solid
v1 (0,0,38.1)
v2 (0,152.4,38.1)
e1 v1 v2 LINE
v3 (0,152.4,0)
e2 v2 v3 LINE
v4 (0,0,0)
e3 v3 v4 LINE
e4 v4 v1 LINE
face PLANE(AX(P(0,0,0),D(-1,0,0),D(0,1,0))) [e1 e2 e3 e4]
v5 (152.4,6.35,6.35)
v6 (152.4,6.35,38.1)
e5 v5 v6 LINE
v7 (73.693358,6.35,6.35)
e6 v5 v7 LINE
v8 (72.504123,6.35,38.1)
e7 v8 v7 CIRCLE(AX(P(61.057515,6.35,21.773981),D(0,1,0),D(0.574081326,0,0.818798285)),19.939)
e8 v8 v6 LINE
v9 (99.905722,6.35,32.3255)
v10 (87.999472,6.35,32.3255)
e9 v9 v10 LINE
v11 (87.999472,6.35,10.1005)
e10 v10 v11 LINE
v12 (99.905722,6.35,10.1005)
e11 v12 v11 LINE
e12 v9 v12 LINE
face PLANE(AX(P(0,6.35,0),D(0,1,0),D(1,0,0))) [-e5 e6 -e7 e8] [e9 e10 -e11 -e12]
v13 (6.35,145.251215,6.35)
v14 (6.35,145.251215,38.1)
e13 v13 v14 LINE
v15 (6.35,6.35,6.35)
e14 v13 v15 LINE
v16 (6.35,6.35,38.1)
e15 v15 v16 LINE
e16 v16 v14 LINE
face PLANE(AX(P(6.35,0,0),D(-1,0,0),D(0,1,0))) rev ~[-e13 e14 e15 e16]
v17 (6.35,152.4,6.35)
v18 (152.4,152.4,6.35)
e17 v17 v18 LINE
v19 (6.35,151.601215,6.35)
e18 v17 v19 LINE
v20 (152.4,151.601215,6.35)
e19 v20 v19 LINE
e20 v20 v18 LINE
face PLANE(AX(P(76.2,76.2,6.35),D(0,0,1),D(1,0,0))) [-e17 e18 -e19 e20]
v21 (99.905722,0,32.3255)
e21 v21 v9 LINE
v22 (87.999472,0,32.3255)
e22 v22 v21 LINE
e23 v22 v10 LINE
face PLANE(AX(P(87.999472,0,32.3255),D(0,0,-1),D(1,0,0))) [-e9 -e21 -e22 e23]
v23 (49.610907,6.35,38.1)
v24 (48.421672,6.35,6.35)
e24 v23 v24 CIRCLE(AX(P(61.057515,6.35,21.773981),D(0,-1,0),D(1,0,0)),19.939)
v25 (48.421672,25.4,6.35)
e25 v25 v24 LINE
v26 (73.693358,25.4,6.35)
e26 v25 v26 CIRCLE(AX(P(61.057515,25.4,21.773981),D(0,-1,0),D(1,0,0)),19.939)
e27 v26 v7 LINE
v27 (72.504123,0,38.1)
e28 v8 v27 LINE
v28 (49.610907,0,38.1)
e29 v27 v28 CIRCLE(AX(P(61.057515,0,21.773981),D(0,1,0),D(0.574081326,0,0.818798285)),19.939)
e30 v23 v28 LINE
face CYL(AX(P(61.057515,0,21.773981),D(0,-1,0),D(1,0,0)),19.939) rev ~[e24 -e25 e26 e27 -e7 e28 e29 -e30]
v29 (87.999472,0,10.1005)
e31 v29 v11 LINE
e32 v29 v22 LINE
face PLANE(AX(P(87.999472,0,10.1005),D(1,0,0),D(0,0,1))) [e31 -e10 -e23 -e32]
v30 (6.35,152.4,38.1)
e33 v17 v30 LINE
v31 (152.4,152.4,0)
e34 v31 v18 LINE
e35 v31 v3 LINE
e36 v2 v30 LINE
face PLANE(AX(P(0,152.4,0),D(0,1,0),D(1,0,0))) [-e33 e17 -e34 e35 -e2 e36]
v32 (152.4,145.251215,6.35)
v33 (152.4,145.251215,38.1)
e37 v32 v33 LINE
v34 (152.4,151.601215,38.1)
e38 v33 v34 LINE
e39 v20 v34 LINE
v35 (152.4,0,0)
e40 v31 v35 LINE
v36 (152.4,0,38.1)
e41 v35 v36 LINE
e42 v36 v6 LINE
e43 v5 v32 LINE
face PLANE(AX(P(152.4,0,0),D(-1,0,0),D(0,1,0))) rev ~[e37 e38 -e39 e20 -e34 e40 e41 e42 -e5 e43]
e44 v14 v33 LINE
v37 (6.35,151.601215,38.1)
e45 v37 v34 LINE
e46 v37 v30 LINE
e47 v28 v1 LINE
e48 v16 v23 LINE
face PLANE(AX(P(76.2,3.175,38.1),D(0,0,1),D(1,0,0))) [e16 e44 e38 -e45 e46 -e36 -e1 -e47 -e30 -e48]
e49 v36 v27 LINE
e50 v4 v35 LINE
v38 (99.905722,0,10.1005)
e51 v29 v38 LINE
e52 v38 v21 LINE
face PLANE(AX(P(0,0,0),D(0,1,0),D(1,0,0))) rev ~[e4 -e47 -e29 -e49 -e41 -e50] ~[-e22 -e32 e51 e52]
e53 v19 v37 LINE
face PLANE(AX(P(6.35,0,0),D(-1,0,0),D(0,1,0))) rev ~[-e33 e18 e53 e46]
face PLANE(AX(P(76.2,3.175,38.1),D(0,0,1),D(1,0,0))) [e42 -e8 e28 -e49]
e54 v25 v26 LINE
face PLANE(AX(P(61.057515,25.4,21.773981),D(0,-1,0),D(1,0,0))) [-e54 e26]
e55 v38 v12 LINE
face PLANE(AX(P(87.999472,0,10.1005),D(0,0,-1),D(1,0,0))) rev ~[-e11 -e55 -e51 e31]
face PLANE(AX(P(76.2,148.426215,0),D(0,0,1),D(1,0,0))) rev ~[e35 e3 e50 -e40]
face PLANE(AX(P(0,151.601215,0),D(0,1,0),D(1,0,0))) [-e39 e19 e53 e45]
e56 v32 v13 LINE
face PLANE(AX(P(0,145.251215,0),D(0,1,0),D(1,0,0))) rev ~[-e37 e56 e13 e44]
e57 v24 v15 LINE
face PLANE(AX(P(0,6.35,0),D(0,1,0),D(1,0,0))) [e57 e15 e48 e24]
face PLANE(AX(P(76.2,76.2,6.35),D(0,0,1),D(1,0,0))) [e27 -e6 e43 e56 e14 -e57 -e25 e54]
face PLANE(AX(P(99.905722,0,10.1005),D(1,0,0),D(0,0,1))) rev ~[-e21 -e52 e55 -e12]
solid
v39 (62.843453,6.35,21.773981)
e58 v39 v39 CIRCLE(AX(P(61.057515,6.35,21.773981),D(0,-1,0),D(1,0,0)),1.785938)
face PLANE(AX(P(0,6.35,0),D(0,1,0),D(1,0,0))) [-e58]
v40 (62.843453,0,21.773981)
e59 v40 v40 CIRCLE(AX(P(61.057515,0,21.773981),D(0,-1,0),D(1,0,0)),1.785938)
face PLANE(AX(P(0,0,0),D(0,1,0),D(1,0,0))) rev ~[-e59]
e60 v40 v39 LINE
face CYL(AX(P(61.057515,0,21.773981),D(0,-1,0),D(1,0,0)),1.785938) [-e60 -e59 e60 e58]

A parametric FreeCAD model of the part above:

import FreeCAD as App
import Part
import Sketcher
from FreeCAD import Vector
Q = App.Units.Quantity


def add_polygon(sketch, points):
    """Adds a closed chain of lines whose ends are joined by coincident constraints."""
    first, n = sketch.GeometryCount, len(points)
    for a, b in zip(points, points[1:] + points[:1]):
        sketch.addGeometry(Part.LineSegment(App.Vector(*a, 0), App.Vector(*b, 0)), False)
    for i in range(n):
        sketch.addConstraint(Sketcher.Constraint("Coincident", first + i, 2, first + (i + 1) % n, 1))

doc = App.newDocument("Part")
body = doc.addObject("PartDesign::Body", "Body")
body.AllowCompound = True

# Sketch on XY plane
sketch1 = body.newObject("Sketcher::SketchObject", "Sketch")
sketch1.AttachmentSupport = (doc.getObject("XY_Plane"), [""])
sketch1.MapMode = "FlatFace"
add_polygon(sketch1, [(0, 152), (0, 0), (152, 0), (152, 152)])  # lines 0-3
sketch1.addConstraint([
    Sketcher.Constraint("Vertical", 0),
    Sketcher.Constraint("Horizontal", 1),
    Sketcher.Constraint("Vertical", 2),
    Sketcher.Constraint("Horizontal", 3),
    Sketcher.Constraint("Coincident", 0, 2, -1, 1),
    Sketcher.Constraint("Equal", 3, 0),
    Sketcher.Constraint("DistanceX", 1, 1, 1, 2, Q("6 in")),
])
pad1 = body.newObject("PartDesign::Pad", "Pad")
pad1.Profile = sketch1
pad1.Length = Q("0.25 in")

# Sketch on XY plane
sketch2 = body.newObject("Sketcher::SketchObject", "Sketch001")
sketch2.AttachmentSupport = (doc.getObject("XY_Plane"), [""])
sketch2.MapMode = "FlatFace"
add_polygon(sketch2, [(0, 6), (0, 0), (152, 0), (152, 6)])  # lines 0-3
sketch2.addConstraint([
    Sketcher.Constraint("Vertical", 0),
    Sketcher.Constraint("Horizontal", 1),
    Sketcher.Constraint("Vertical", 2),
    Sketcher.Constraint("Horizontal", 3),
    Sketcher.Constraint("Coincident", 0, 2, -1, 1),
    Sketcher.Constraint("DistanceX", 1, 1, 1, 2, Q("6 in")),
    Sketcher.Constraint("DistanceY", 0, 2, 0, 1, Q("0.25 in")),
])
pad2 = body.newObject("PartDesign::Pad", "Pad001")
pad2.Profile = sketch2
pad2.Length = Q("1.5 in")

# Sketch on XY plane
sketch3 = body.newObject("Sketcher::SketchObject", "Sketch002")
sketch3.AttachmentSupport = (doc.getObject("XY_Plane"), [""])
sketch3.MapMode = "FlatFace"
add_polygon(sketch3, [(0, 152), (0, 145), (152, 145), (152, 152)])  # lines 0-3
sketch3.addConstraint([
    Sketcher.Constraint("Vertical", 0),
    Sketcher.Constraint("Horizontal", 1),
    Sketcher.Constraint("Vertical", 2),
    Sketcher.Constraint("Horizontal", 3),
    Sketcher.Constraint("PointOnObject", 0, 2, -2),
    Sketcher.Constraint("DistanceX", 1, 1, 1, 2, Q("6 in")),
    Sketcher.Constraint("DistanceY", 0, 2, 0, 1, Q("0.25 in")),
    Sketcher.Constraint("DistanceY", -1, 1, 0, 2, Q("145.251215 mm")),
])
pad3 = body.newObject("PartDesign::Pad", "Pad002")
pad3.Profile = sketch3
pad3.Length = Q("1.5 in")

# Sketch on XY plane
sketch4 = body.newObject("Sketcher::SketchObject", "Sketch003")
sketch4.AttachmentSupport = (doc.getObject("XY_Plane"), [""])
sketch4.MapMode = "FlatFace"
add_polygon(sketch4, [(0, 152), (0, 0), (6, 0), (6, 152)])  # lines 0-3
sketch4.addConstraint([
    Sketcher.Constraint("Vertical", 0),
    Sketcher.Constraint("Horizontal", 1),
    Sketcher.Constraint("Vertical", 2),
    Sketcher.Constraint("Horizontal", 3),
    Sketcher.Constraint("Coincident", 0, 2, -1, 1),
    Sketcher.Constraint("DistanceY", 0, 2, 0, 1, Q("6 in")),
    Sketcher.Constraint("DistanceX", 1, 1, 1, 2, Q("0.25 in")),
])
pad4 = body.newObject("PartDesign::Pad", "Pad003")
pad4.Profile = sketch4
pad4.Length = Q("1.5 in")

# Sketch on XZ plane
sketch5 = body.newObject("Sketcher::SketchObject", "Sketch004")
sketch5.AttachmentSupport = (doc.getObject("XZ_Plane"), [""])
sketch5.MapMode = "FlatFace"
add_polygon(sketch5, [(88, 32.3), (88, 10.1), (99.9, 10.1), (99.9, 32.3)])  # lines 0-3
sketch5.addGeometry(Part.Circle(Vector(61.1, 21.8, 0), Vector(0, 0, 1), 19.9), False)  # 4
sketch5.addGeometry(Part.Circle(Vector(61.1, 21.8, 0), Vector(0, 0, 1), 1.8), False)  # 5
sketch5.addConstraint([
    Sketcher.Constraint("Vertical", 0),
    Sketcher.Constraint("Horizontal", 1),
    Sketcher.Constraint("Vertical", 2),
    Sketcher.Constraint("Horizontal", 3),
    Sketcher.Constraint("Coincident", 5, 3, 4, 3),
    Sketcher.Constraint("Diameter", 4, Q("1.57 in")),
    Sketcher.Constraint("Diameter", 5, Q("0.140625 in")),
    Sketcher.Constraint("DistanceX", 1, 1, 1, 2, Q("0.46875 in")),
    Sketcher.Constraint("DistanceY", 0, 2, 0, 1, Q("0.875 in")),
    Sketcher.Constraint("DistanceY", -1, 1, 0, 2, Q("10.1005 mm")),
    Sketcher.Constraint("DistanceY", -1, 1, 4, 3, Q("21.773981 mm")),
    Sketcher.Constraint("DistanceX", -1, 1, 0, 2, Q("87.999472 mm")),
    Sketcher.Constraint("DistanceX", -1, 1, 4, 3, Q("61.057515 mm")),
])
pocket1 = body.newObject("PartDesign::Pocket", "Pocket")
pocket1.Profile = sketch5
pocket1.Length = Q("1 in")

# Sketch on XZ plane
sketch6 = body.newObject("Sketcher::SketchObject", "Sketch005")
sketch6.AttachmentSupport = (doc.getObject("XZ_Plane"), [""])
sketch6.MapMode = "FlatFace"
add_polygon(sketch6, [(88, 32), (88, 10), (100, 10), (100, 32)])  # lines 0-3
sketch6.addConstraint([
    Sketcher.Constraint("Vertical", 0),
    Sketcher.Constraint("Horizontal", 1),
    Sketcher.Constraint("Vertical", 2),
    Sketcher.Constraint("Horizontal", 3),
    Sketcher.Constraint("DistanceX", 1, 1, 1, 2, Q("0.46875 in")),
    Sketcher.Constraint("DistanceY", 0, 2, 0, 1, Q("0.875 in")),
    Sketcher.Constraint("DistanceY", -1, 1, 0, 2, Q("10.1005 mm")),
    Sketcher.Constraint("DistanceX", -1, 1, 0, 2, Q("87.999472 mm")),
])
pocket2 = body.newObject("PartDesign::Pocket", "Pocket001")
pocket2.Profile = sketch6
pocket2.Length = Q("1 in")

doc.recompute()
